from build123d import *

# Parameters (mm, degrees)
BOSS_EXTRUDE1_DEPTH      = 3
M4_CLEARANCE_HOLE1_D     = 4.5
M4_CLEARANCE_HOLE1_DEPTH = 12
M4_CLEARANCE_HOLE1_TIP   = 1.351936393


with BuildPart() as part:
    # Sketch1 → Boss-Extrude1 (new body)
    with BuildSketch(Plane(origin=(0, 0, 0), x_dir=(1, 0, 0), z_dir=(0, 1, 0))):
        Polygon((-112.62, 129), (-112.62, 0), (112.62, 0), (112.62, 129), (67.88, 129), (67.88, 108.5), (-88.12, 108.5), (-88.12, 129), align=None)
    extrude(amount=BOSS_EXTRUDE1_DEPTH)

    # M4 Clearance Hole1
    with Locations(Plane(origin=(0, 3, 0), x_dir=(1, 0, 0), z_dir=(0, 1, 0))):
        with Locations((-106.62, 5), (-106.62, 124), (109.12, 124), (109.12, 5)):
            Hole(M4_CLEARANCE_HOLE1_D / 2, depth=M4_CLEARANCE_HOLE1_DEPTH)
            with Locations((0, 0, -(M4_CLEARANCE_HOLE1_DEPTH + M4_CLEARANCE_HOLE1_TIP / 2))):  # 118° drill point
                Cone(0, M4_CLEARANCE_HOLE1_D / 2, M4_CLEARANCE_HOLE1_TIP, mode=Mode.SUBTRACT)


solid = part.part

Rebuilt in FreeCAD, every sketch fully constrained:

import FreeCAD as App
import Part
import Sketcher


def add_polygon(sketch, points):
    """Adds a closed chain of lines whose ends are joined by coincident constraints."""
    first, n = sketch.GeometryCount, len(points)
    for a, b in zip(points, points[1:] + points[:1]):
        sketch.addGeometry(Part.LineSegment(App.Vector(*a, 0), App.Vector(*b, 0)), False)
    for i in range(n):
        sketch.addConstraint(Sketcher.Constraint("Coincident", first + i, 2, first + (i + 1) % n, 1))

doc = App.newDocument("Part")
body = doc.addObject("PartDesign::Body", "Body")

# Sketch on XZ plane
sketch1 = body.newObject("Sketcher::SketchObject", "Sketch")
sketch1.AttachmentSupport = (doc.getObject("XZ_Plane"), [""])
sketch1.MapMode = "FlatFace"
add_polygon(sketch1, [(-112.62, -129), (-112.62, 0), (112.62, 0), (112.62, -129), (67.88, -129), (67.88, -108.5), (-88.12, -108.5), (-88.12, -129)])  # lines 0-7
sketch1.addConstraint(Sketcher.Constraint("Vertical", 0))
sketch1.addConstraint(Sketcher.Constraint("Horizontal", 1))
sketch1.addConstraint(Sketcher.Constraint("Vertical", 2))
sketch1.addConstraint(Sketcher.Constraint("Horizontal", 3))
sketch1.addConstraint(Sketcher.Constraint("Vertical", 4))
sketch1.addConstraint(Sketcher.Constraint("Horizontal", 5))
sketch1.addConstraint(Sketcher.Constraint("Vertical", 6))
sketch1.addConstraint(Sketcher.Constraint("Horizontal", 7))
sketch1.addConstraint(Sketcher.Constraint("Symmetric", 0, 2, 1, 2, -1, 1))
sketch1.addConstraint(Sketcher.Constraint("Horizontal", 3, 2, 6, 2))
sketch1.addConstraint(Sketcher.Constraint("DistanceX", 5, 2, 5, 1, 156.0))
sketch1.addConstraint(Sketcher.Constraint("DistanceY", 0, 1, 0, 2, 129.0))
sketch1.addConstraint(Sketcher.Constraint("DistanceX", 7, 2, 7, 1, 24.5))
sketch1.addConstraint(Sketcher.Constraint("DistanceY", 4, 1, 4, 2, 20.5))
sketch1.addConstraint(Sketcher.Constraint("DistanceX", 1, 1, 1, 2, 225.24))
pad1 = body.newObject("PartDesign::Pad", "Pad")
pad1.Profile = sketch1
pad1.Length = 3
pad1.Reversed = True

# Sketch on XZ plane
sketch2 = body.newObject("Sketcher::SketchObject", "Sketch001")
sketch2.AttachmentSupport = (doc.getObject("XZ_Plane"), [""])
sketch2.MapMode = "FlatFace"
sketch2.AttachmentOffset = App.Placement(App.Vector(0, 0, -3), App.Rotation())
sketch2.addGeometry(Part.Circle(App.Vector(-106.62, -5, 0), App.Vector(0, 0, 1), 2.25), False)
sketch2.addGeometry(Part.Circle(App.Vector(-106.62, -124, 0), App.Vector(0, 0, 1), 2.25), False)
sketch2.addGeometry(Part.Circle(App.Vector(109.12, -124, 0), App.Vector(0, 0, 1), 2.25), False)
sketch2.addGeometry(Part.Circle(App.Vector(109.12, -5, 0), App.Vector(0, 0, 1), 2.25), False)
sketch2.addConstraint(Sketcher.Constraint("Equal", 0, 1))
sketch2.addConstraint(Sketcher.Constraint("Equal", 1, 2))
sketch2.addConstraint(Sketcher.Constraint("Equal", 2, 3))
sketch2.addConstraint(Sketcher.Constraint("Horizontal", 1, 3, 2, 3))
sketch2.addConstraint(Sketcher.Constraint("Horizontal", 0, 3, 3, 3))
sketch2.addConstraint(Sketcher.Constraint("Vertical", 0, 3, 1, 3))
sketch2.addConstraint(Sketcher.Constraint("Vertical", 2, 3, 3, 3))
sketch2.addConstraint(Sketcher.Constraint("Diameter", 0, 4.5))
sketch2.addConstraint(Sketcher.Constraint("DistanceY", 0, 3, -1, 1, 5.0))
sketch2.addConstraint(Sketcher.Constraint("DistanceY", 1, 3, -1, 1, 124.0))
sketch2.addConstraint(Sketcher.Constraint("DistanceX", 0, 3, -1, 1, 106.62))
sketch2.addConstraint(Sketcher.Constraint("DistanceX", -1, 1, 2, 3, 109.12))
doc.recompute()
hole = body.newObject("PartDesign::Hole", "Hole")
hole.Profile = sketch2
hole.ThreadType = "None"
hole.Diameter = 4.5
hole.DepthType = "Dimension"
hole.Depth = 12
hole.DrillPoint = "Angled"
hole.DrillPointAngle = 118
hole.Reversed = True

doc.recompute()
